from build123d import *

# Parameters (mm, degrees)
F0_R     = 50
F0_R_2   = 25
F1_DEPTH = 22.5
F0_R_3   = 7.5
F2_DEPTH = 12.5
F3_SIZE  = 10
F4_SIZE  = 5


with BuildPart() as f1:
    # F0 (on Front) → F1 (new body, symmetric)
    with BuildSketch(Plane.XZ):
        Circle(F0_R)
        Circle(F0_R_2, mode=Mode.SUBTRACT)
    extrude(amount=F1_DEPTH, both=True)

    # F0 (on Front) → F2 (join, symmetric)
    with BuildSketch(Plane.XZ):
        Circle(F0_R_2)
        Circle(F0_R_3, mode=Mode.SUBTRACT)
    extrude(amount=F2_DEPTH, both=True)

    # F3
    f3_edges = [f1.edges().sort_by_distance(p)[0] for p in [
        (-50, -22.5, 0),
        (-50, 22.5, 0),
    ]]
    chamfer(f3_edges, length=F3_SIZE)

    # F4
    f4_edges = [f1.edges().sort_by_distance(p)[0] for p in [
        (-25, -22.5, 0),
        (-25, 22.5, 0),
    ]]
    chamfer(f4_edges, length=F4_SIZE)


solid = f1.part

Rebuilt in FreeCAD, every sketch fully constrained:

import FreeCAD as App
import Part
import Sketcher


def edges_at(feature, points):
    """Names of the edges that pass closest to the given points."""
    edges = feature.Shape.Edges
    near = lambda p: min(range(len(edges)), key=lambda i: edges[i].distToShape(Part.Vertex(*p))[0])
    return sorted({f"Edge{near(p) + 1}" for p in points})

doc = App.newDocument("Part")
params = doc.addObject("Spreadsheet::Sheet", "Params")
for row, (alias, value) in enumerate([
    ("sketch1_diameter", "100 mm"),
    ("sketch1_diameter2", "50 mm"),
    ("pad1_length", "45 mm"),
    ("sketch2_diameter", "50 mm"),
    ("sketch2_diameter2", "15 mm"),
    ("pad2_length", "25 mm"),
    ("chamfer_size", "10 mm"),
    ("chamfer2_size", "5 mm"),
], start=1):
    params.set(f"A{row}", alias)
    params.set(f"B{row}", "=" + value)
    params.setAlias(f"B{row}", alias)

body = doc.addObject("PartDesign::Body", "Body")

# Sketch on XZ plane
sketch1 = body.newObject("Sketcher::SketchObject", "Sketch")
sketch1.AttachmentSupport = (doc.getObject("XZ_Plane"), [""])
sketch1.MapMode = "FlatFace"
sketch1.addGeometry([
    Part.Circle(App.Vector(0, 0, 0), App.Vector(0, 0, 1), 50),
    Part.Circle(App.Vector(0, 0, 0), App.Vector(0, 0, 1), 25),
], False)
sketch1.addConstraint([
    Sketcher.Constraint("Coincident", 0, 3, -1, 1),
    Sketcher.Constraint("Coincident", 1, 3, -1, 1),
    Sketcher.Constraint("Diameter", 0, 100.0),
    Sketcher.Constraint("Diameter", 1, 50.0),
])
sketch1.setExpression("Constraints[2]", "Params.sketch1_diameter")
sketch1.setExpression("Constraints[3]", "Params.sketch1_diameter2")
pad1 = body.newObject("PartDesign::Pad", "Pad")
pad1.Profile = sketch1
pad1.setExpression("Length", "Params.pad1_length")
pad1.Midplane = True

# Sketch on XZ plane
sketch2 = body.newObject("Sketcher::SketchObject", "Sketch001")
sketch2.AttachmentSupport = (doc.getObject("XZ_Plane"), [""])
sketch2.MapMode = "FlatFace"
sketch2.addGeometry([
    Part.Circle(App.Vector(0, 0, 0), App.Vector(0, 0, 1), 25),
    Part.Circle(App.Vector(0, 0, 0), App.Vector(0, 0, 1), 7.5),
], False)
sketch2.addConstraint([
    Sketcher.Constraint("Coincident", 0, 3, -1, 1),
    Sketcher.Constraint("Coincident", 1, 3, -1, 1),
    Sketcher.Constraint("Diameter", 0, 50.0),
    Sketcher.Constraint("Diameter", 1, 15.0),
])
sketch2.setExpression("Constraints[2]", "Params.sketch2_diameter")
sketch2.setExpression("Constraints[3]", "Params.sketch2_diameter2")
pad2 = body.newObject("PartDesign::Pad", "Pad001")
pad2.Profile = sketch2
pad2.setExpression("Length", "Params.pad2_length")
pad2.Midplane = True
doc.recompute()

chamfer = body.newObject("PartDesign::Chamfer", "Chamfer")
chamfer.Base = (pad2, edges_at(pad2, [(-50, -22.5, 0), (-50, 22.5, 0)]))
chamfer.setExpression("Size", "Params.chamfer_size")
doc.recompute()

chamfer2 = body.newObject("PartDesign::Chamfer", "Chamfer001")
chamfer2.Base = (chamfer, edges_at(chamfer, [(-25, -22.5, 0), (-25, 22.5, 0)]))
chamfer2.setExpression("Size", "Params.chamfer2_size")

doc.recompute()
